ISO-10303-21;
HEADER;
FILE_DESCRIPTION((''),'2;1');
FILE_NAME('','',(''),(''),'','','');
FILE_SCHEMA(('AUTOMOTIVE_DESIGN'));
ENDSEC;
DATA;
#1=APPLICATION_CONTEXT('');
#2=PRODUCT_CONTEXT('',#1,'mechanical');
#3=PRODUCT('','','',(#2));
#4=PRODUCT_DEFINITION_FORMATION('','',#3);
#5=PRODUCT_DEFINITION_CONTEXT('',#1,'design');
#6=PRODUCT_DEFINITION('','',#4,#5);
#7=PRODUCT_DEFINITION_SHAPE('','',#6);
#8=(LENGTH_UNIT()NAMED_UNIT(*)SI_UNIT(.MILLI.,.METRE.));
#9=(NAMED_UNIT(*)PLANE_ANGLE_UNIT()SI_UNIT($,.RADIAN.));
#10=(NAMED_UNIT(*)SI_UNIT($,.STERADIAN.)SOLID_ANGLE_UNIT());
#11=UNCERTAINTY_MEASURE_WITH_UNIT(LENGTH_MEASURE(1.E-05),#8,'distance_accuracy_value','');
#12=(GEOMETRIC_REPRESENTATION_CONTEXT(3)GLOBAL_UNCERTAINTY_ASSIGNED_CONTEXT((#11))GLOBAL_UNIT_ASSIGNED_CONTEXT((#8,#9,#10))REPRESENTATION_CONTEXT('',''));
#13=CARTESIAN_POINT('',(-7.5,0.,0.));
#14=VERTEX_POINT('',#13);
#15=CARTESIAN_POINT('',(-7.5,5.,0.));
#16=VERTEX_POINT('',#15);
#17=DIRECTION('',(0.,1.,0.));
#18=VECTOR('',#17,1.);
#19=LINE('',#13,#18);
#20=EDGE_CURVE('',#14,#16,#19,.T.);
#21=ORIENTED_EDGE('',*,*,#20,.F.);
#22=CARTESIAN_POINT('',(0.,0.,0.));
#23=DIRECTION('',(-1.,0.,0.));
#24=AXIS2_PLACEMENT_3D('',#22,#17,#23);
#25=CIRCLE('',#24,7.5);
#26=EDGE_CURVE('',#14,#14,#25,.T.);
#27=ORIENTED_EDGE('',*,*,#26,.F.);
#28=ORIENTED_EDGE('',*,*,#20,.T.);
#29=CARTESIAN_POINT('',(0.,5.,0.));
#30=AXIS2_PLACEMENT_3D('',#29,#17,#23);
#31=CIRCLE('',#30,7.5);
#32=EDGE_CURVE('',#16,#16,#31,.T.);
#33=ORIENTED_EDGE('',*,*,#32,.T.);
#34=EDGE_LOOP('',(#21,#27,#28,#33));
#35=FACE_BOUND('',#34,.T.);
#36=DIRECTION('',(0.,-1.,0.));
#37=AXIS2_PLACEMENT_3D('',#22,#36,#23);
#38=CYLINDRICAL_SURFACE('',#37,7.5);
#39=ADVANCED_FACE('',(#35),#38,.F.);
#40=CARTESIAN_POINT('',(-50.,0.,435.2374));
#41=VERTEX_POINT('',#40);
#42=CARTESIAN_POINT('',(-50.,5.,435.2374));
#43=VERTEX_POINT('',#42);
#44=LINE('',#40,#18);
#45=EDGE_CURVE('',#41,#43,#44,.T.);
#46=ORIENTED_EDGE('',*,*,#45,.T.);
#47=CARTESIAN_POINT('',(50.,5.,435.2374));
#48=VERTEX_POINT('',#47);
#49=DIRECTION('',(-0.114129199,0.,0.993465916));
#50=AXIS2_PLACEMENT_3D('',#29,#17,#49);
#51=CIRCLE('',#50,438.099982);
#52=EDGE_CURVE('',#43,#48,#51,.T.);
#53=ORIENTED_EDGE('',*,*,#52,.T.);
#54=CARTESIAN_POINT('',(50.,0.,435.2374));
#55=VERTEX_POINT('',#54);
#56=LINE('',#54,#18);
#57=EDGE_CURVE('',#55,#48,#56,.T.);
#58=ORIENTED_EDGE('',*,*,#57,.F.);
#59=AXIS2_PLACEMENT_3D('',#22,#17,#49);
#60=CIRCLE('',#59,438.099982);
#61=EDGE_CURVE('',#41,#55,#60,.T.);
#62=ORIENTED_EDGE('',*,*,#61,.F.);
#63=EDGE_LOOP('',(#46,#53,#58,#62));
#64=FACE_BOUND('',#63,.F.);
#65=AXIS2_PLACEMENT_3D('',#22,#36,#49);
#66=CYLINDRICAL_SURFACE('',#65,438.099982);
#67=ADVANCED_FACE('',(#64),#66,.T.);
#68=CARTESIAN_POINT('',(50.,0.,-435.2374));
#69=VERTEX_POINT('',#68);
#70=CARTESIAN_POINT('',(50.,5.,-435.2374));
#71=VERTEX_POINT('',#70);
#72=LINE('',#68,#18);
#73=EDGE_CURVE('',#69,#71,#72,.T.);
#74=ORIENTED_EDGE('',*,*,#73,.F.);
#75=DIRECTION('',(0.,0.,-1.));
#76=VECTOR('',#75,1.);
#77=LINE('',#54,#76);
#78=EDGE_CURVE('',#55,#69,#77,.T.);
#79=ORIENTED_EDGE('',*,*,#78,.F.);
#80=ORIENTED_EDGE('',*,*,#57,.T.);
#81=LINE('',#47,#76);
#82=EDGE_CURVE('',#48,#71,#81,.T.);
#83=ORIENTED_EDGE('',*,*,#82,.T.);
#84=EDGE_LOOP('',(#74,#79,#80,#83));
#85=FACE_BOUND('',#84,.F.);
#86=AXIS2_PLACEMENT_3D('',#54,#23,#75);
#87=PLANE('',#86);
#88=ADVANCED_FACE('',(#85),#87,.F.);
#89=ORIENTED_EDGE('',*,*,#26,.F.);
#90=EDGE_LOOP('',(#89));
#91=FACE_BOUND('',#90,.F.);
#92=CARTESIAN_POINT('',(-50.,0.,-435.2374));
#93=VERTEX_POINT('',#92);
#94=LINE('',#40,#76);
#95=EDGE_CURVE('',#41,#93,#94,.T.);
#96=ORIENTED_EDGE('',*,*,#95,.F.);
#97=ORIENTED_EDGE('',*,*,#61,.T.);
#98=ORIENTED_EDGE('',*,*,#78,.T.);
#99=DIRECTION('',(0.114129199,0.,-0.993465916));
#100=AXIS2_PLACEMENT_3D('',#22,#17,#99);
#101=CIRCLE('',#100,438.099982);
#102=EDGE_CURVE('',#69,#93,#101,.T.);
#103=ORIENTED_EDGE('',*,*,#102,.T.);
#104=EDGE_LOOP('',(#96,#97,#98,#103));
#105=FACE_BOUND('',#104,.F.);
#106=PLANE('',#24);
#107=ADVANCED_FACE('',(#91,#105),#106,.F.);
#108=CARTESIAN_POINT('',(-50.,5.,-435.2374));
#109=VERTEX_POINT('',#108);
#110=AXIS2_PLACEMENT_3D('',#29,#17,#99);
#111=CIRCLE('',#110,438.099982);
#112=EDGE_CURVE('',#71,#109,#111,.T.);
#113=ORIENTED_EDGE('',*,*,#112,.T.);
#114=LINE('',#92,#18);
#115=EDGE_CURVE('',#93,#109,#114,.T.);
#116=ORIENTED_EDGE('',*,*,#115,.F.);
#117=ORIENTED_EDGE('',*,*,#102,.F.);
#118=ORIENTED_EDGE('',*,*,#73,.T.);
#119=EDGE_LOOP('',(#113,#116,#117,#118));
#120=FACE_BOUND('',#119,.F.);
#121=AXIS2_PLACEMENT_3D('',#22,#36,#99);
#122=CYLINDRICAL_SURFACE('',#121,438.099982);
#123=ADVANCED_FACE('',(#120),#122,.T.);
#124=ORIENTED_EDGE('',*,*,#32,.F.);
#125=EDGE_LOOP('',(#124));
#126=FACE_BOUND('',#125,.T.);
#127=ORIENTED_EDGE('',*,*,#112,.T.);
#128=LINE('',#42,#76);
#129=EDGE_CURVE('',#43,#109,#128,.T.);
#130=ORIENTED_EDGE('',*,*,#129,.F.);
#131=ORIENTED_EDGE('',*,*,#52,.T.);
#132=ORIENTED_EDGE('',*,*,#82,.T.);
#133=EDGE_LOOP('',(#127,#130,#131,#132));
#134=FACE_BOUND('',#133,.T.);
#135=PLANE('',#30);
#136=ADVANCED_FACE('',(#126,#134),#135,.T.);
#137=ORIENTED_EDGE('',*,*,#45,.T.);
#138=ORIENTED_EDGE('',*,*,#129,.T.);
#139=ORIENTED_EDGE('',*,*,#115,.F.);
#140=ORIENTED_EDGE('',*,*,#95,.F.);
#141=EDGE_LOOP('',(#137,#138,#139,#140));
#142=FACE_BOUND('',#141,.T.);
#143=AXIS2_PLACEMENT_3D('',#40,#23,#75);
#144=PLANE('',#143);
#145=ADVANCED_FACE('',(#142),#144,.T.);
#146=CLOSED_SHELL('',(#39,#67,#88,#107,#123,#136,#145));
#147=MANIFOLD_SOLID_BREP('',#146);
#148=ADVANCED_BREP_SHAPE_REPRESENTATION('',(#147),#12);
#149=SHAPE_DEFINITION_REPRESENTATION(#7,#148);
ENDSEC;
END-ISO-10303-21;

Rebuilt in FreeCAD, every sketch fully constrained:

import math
import FreeCAD as App
import Part
import Sketcher

V = App.Vector
Q = App.Units.Quantity

doc = App.newDocument("Part")
body = doc.addObject("PartDesign::Body", "Body")

# Sketch on XZ plane
sketch1 = body.newObject("Sketcher::SketchObject", "Sketch")
sketch1.AttachmentSupport = (doc.getObject("XZ_Plane"), [""])
sketch1.MapMode = "FlatFace"
sketch1.addGeometry(Part.LineSegment(V(-50, -435, 0), V(-50, 435, 0)), False)
sketch1.addGeometry(Part.ArcOfCircle(Part.Circle(V(0, 0, 0), V(0, 0, 1), 438), math.radians(83.45), math.radians(96.55)), False)
sketch1.addGeometry(Part.LineSegment(V(50, 435, 0), V(50, -435, 0)), False)
sketch1.addGeometry(Part.ArcOfCircle(Part.Circle(V(0, 0, 0), V(0, 0, 1), 438), math.radians(-96.55), math.radians(-83.45)), False)
sketch1.addGeometry(Part.Circle(V(0, 0, 0), V(0, 0, 1), 8), False)
sketch1.addConstraint(Sketcher.Constraint("Coincident", 0, 2, 1, 2))
sketch1.addConstraint(Sketcher.Constraint("Coincident", 1, 1, 2, 1))
sketch1.addConstraint(Sketcher.Constraint("Coincident", 2, 2, 3, 2))
sketch1.addConstraint(Sketcher.Constraint("Coincident", 3, 1, 0, 1))
sketch1.addConstraint(Sketcher.Constraint("Vertical", 0))
sketch1.addConstraint(Sketcher.Constraint("Vertical", 2))
sketch1.addConstraint(Sketcher.Constraint("Coincident", 1, 3, -1, 1))
sketch1.addConstraint(Sketcher.Constraint("Coincident", 3, 3, -1, 1))
sketch1.addConstraint(Sketcher.Constraint("Coincident", 4, 3, -1, 1))
sketch1.addConstraint(Sketcher.Constraint("Equal", 1, 3))
sketch1.addConstraint(Sketcher.Constraint("Horizontal", 0, 2, 1, 1))
sketch1.addConstraint(Sketcher.Constraint("Diameter", 4, Q("15 mm")))
sketch1.addConstraint(Sketcher.Constraint("Radius", 1, Q("438.1 mm")))
sketch1.addConstraint(Sketcher.Constraint("DistanceX", 0, 2, 1, 1, Q("100 mm")))
pad1 = body.newObject("PartDesign::Pad", "Pad")
pad1.Profile = sketch1
pad1.Length = 5
pad1.Reversed = True

doc.recompute()
